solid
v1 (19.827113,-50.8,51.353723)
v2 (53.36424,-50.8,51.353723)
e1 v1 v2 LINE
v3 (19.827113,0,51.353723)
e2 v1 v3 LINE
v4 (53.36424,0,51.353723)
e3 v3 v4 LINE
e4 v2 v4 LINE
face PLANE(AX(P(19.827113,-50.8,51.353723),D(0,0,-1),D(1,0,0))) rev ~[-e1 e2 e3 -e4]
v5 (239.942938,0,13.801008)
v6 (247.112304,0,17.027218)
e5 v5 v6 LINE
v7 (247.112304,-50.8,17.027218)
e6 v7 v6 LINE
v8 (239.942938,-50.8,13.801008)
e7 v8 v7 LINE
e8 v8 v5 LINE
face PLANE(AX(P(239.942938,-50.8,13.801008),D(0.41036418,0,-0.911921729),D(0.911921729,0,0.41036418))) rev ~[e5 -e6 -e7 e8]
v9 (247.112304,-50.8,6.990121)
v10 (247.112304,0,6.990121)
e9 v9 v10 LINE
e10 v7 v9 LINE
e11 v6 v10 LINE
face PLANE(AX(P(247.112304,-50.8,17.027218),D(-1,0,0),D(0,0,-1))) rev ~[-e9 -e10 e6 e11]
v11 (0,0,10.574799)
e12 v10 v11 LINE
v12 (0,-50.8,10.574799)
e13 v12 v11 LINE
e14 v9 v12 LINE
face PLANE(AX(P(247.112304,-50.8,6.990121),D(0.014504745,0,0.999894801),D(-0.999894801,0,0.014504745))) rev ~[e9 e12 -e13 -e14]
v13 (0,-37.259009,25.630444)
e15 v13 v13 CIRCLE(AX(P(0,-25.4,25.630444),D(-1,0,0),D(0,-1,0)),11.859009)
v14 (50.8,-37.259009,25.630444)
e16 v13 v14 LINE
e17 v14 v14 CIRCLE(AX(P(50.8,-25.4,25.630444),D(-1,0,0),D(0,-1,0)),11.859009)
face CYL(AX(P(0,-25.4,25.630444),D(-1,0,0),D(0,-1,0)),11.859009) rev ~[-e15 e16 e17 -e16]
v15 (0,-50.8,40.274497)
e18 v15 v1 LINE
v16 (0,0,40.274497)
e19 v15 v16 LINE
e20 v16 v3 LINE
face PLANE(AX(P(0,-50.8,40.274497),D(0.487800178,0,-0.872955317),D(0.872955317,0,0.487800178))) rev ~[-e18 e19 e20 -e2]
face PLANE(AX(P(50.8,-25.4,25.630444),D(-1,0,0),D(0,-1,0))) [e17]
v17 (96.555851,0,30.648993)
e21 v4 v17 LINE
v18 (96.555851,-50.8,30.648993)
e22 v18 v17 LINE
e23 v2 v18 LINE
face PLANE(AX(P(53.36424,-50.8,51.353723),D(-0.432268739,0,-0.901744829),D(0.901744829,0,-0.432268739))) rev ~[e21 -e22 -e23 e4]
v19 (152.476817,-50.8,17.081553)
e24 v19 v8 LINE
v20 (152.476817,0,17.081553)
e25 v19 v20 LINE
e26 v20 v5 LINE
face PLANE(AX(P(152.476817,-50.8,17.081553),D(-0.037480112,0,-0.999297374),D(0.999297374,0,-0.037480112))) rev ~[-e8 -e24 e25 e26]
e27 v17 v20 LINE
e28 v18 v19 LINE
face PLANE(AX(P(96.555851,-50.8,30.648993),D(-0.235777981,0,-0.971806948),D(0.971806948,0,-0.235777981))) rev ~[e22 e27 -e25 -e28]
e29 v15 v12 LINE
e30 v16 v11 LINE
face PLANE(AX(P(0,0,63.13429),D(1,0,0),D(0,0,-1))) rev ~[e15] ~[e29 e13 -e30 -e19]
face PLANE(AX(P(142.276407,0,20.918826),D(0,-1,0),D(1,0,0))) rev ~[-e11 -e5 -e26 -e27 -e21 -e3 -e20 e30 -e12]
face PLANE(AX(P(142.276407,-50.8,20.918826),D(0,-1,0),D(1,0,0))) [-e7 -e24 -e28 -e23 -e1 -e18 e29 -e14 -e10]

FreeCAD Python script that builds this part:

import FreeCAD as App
import Part
import Sketcher
Q = App.Units.Quantity


def add_polygon(sketch, points):
    """Adds a closed chain of lines whose ends are joined by coincident constraints."""
    first, n = sketch.GeometryCount, len(points)
    for a, b in zip(points, points[1:] + points[:1]):
        sketch.addGeometry(Part.LineSegment(App.Vector(*a, 0), App.Vector(*b, 0)), False)
    for i in range(n):
        sketch.addConstraint(Sketcher.Constraint("Coincident", first + i, 2, first + (i + 1) % n, 1))

doc = App.newDocument("Part")
params = doc.addObject("Spreadsheet::Sheet", "Params")
for row, (alias, value) in enumerate([
    ("sketch1_width", "12 in"),
    ("pad1_length", "2 in"),
    ("pocket1_length", "2 in"),
    ("sketch3_width", "12 in"),
    ("pocket2_length", "3 in"),
], start=1):
    params.set(f"A{row}", alias)
    params.set(f"B{row}", "=" + value)
    params.setAlias(f"B{row}", alias)

body = doc.addObject("PartDesign::Body", "Body")

# Sketch on XZ plane
sketch1 = doc.addObject("Sketcher::SketchObject", "Sketch")
body.addObject(sketch1)
sketch1.AttachmentSupport = (doc.XZ_Plane, [""])
sketch1.MapMode = "FlatFace"
add_polygon(sketch1, [(0, 63.13429), (0, 0), (304.8, 0), (304.8, 17.081553)])  # lines 0-3
sketch1.addConstraint([
    Sketcher.Constraint("Vertical", 0),
    Sketcher.Constraint("Horizontal", 1),
    Sketcher.Constraint("Vertical", 2),
    Sketcher.Constraint("Coincident", 0, 2, -1, 1),
    Sketcher.Constraint("DistanceX", 1, 1, 1, 2, Q("12 in")),
    Sketcher.Constraint("DistanceY", 2, 2, 3, 2, Q("1.8130999 in")),
    Sketcher.Constraint("DistanceY", 0, 2, 0, 1, 63.13429),
])
sketch1.setExpression("Constraints[8]", "Params.sketch1_width")
pad1 = doc.addObject("PartDesign::Pad", "Pad")
body.addObject(pad1)
pad1.Profile = sketch1
pad1.setExpression("Length", "Params.pad1_length")

# Sketch on YZ plane
sketch2 = doc.addObject("Sketcher::SketchObject", "Sketch001")
body.addObject(sketch2)
sketch2.AttachmentSupport = (doc.YZ_Plane, [""])
sketch2.MapMode = "FlatFace"
sketch2.addGeometry(Part.Circle(App.Vector(-25.4, 25.630444, 0), App.Vector(0, 0, 1), 11.859009), False)
sketch2.addConstraint([
    Sketcher.Constraint("DistanceX", 0, 3, -1, 1, Q("1 in")),
    Sketcher.Constraint("Diameter", 0, 23.718018),
    Sketcher.Constraint("DistanceY", -1, 1, 0, 3, 25.630444),
])
pocket1 = doc.addObject("PartDesign::Pocket", "Pocket")
body.addObject(pocket1)
pocket1.Profile = sketch2
pocket1.setExpression("Length", "Params.pocket1_length")
pocket1.Reversed = True

# Sketch on XZ plane
sketch3 = doc.addObject("Sketcher::SketchObject", "Sketch002")
body.addObject(sketch3)
sketch3.AttachmentSupport = (doc.XZ_Plane, [""])
sketch3.MapMode = "FlatFace"
sketch3.AttachmentOffset = App.Placement(App.Vector(0, 0, 2 * 25.4), App.Rotation())
add_polygon(sketch3, [(0, 63.13429), (0, 40.274497), (19.827113, 51.353723), (53.36424, 51.353723), (96.555851, 30.648993), (152.476817, 17.081553), (239.942938, 13.801008), (247.112304, 17.027218), (247.112304, 6.990121), (0, 10.574799), (0, 0), (304.8, 0), (304.8, 17.081553)])  # lines 0-12
sketch3.addConstraint([
    Sketcher.Constraint("Vertical", 0),
    Sketcher.Constraint("Horizontal", 2),
    Sketcher.Constraint("Vertical", 7),
    Sketcher.Constraint("Vertical", 9),
    Sketcher.Constraint("Horizontal", 10),
    Sketcher.Constraint("Vertical", 11),
    Sketcher.Constraint("Coincident", 9, 2, -1, 1),
    Sketcher.Constraint("PointOnObject", 0, 2, -2),
    Sketcher.Constraint("Horizontal", 4, 2, 11, 2),
    Sketcher.Constraint("DistanceX", 10, 1, 10, 2, Q("12 in")),
    Sketcher.Constraint("DistanceY", 9, 2, 9, 1, 10.574799),
    Sketcher.Constraint("DistanceY", -1, 1, 1, 2, Q("2.0218001 in")),
    Sketcher.Constraint("DistanceX", 2, 2, 5, 2, 186.578698),
    Sketcher.Constraint("Distance", 3, 47.897819),
    Sketcher.Constraint("Distance", 5, 87.52762),
    Sketcher.Constraint("Distance", 6, 7.861822),
    Sketcher.Constraint("Distance", 12, 308.25946),
    Sketcher.Constraint("DistanceX", 2, 1, 2, 2, 33.537127),
    Sketcher.Constraint("DistanceY", 0, 2, 0, 1, 22.859793),
    Sketcher.Constraint("DistanceY", 7, 2, 7, 1, 10.037097),
    Sketcher.Constraint("DistanceY", 11, 1, 11, 2, 17.081553),
    Sketcher.Constraint("DistanceX", -1, 1, 2, 2, 53.36424),
    Sketcher.Constraint("DistanceX", -1, 1, 3, 2, 96.555851),
    Sketcher.Constraint("DistanceY", -1, 1, 6, 2, 17.027218),
    Sketcher.Constraint("DistanceX", 4, 2, 5, 2, 87.466121),
])
sketch3.setExpression("Constraints[22]", "Params.sketch3_width")
pocket2 = doc.addObject("PartDesign::Pocket", "Pocket001")
body.addObject(pocket2)
pocket2.Profile = sketch3
pocket2.setExpression("Length", "Params.pocket2_length")

doc.recompute()
